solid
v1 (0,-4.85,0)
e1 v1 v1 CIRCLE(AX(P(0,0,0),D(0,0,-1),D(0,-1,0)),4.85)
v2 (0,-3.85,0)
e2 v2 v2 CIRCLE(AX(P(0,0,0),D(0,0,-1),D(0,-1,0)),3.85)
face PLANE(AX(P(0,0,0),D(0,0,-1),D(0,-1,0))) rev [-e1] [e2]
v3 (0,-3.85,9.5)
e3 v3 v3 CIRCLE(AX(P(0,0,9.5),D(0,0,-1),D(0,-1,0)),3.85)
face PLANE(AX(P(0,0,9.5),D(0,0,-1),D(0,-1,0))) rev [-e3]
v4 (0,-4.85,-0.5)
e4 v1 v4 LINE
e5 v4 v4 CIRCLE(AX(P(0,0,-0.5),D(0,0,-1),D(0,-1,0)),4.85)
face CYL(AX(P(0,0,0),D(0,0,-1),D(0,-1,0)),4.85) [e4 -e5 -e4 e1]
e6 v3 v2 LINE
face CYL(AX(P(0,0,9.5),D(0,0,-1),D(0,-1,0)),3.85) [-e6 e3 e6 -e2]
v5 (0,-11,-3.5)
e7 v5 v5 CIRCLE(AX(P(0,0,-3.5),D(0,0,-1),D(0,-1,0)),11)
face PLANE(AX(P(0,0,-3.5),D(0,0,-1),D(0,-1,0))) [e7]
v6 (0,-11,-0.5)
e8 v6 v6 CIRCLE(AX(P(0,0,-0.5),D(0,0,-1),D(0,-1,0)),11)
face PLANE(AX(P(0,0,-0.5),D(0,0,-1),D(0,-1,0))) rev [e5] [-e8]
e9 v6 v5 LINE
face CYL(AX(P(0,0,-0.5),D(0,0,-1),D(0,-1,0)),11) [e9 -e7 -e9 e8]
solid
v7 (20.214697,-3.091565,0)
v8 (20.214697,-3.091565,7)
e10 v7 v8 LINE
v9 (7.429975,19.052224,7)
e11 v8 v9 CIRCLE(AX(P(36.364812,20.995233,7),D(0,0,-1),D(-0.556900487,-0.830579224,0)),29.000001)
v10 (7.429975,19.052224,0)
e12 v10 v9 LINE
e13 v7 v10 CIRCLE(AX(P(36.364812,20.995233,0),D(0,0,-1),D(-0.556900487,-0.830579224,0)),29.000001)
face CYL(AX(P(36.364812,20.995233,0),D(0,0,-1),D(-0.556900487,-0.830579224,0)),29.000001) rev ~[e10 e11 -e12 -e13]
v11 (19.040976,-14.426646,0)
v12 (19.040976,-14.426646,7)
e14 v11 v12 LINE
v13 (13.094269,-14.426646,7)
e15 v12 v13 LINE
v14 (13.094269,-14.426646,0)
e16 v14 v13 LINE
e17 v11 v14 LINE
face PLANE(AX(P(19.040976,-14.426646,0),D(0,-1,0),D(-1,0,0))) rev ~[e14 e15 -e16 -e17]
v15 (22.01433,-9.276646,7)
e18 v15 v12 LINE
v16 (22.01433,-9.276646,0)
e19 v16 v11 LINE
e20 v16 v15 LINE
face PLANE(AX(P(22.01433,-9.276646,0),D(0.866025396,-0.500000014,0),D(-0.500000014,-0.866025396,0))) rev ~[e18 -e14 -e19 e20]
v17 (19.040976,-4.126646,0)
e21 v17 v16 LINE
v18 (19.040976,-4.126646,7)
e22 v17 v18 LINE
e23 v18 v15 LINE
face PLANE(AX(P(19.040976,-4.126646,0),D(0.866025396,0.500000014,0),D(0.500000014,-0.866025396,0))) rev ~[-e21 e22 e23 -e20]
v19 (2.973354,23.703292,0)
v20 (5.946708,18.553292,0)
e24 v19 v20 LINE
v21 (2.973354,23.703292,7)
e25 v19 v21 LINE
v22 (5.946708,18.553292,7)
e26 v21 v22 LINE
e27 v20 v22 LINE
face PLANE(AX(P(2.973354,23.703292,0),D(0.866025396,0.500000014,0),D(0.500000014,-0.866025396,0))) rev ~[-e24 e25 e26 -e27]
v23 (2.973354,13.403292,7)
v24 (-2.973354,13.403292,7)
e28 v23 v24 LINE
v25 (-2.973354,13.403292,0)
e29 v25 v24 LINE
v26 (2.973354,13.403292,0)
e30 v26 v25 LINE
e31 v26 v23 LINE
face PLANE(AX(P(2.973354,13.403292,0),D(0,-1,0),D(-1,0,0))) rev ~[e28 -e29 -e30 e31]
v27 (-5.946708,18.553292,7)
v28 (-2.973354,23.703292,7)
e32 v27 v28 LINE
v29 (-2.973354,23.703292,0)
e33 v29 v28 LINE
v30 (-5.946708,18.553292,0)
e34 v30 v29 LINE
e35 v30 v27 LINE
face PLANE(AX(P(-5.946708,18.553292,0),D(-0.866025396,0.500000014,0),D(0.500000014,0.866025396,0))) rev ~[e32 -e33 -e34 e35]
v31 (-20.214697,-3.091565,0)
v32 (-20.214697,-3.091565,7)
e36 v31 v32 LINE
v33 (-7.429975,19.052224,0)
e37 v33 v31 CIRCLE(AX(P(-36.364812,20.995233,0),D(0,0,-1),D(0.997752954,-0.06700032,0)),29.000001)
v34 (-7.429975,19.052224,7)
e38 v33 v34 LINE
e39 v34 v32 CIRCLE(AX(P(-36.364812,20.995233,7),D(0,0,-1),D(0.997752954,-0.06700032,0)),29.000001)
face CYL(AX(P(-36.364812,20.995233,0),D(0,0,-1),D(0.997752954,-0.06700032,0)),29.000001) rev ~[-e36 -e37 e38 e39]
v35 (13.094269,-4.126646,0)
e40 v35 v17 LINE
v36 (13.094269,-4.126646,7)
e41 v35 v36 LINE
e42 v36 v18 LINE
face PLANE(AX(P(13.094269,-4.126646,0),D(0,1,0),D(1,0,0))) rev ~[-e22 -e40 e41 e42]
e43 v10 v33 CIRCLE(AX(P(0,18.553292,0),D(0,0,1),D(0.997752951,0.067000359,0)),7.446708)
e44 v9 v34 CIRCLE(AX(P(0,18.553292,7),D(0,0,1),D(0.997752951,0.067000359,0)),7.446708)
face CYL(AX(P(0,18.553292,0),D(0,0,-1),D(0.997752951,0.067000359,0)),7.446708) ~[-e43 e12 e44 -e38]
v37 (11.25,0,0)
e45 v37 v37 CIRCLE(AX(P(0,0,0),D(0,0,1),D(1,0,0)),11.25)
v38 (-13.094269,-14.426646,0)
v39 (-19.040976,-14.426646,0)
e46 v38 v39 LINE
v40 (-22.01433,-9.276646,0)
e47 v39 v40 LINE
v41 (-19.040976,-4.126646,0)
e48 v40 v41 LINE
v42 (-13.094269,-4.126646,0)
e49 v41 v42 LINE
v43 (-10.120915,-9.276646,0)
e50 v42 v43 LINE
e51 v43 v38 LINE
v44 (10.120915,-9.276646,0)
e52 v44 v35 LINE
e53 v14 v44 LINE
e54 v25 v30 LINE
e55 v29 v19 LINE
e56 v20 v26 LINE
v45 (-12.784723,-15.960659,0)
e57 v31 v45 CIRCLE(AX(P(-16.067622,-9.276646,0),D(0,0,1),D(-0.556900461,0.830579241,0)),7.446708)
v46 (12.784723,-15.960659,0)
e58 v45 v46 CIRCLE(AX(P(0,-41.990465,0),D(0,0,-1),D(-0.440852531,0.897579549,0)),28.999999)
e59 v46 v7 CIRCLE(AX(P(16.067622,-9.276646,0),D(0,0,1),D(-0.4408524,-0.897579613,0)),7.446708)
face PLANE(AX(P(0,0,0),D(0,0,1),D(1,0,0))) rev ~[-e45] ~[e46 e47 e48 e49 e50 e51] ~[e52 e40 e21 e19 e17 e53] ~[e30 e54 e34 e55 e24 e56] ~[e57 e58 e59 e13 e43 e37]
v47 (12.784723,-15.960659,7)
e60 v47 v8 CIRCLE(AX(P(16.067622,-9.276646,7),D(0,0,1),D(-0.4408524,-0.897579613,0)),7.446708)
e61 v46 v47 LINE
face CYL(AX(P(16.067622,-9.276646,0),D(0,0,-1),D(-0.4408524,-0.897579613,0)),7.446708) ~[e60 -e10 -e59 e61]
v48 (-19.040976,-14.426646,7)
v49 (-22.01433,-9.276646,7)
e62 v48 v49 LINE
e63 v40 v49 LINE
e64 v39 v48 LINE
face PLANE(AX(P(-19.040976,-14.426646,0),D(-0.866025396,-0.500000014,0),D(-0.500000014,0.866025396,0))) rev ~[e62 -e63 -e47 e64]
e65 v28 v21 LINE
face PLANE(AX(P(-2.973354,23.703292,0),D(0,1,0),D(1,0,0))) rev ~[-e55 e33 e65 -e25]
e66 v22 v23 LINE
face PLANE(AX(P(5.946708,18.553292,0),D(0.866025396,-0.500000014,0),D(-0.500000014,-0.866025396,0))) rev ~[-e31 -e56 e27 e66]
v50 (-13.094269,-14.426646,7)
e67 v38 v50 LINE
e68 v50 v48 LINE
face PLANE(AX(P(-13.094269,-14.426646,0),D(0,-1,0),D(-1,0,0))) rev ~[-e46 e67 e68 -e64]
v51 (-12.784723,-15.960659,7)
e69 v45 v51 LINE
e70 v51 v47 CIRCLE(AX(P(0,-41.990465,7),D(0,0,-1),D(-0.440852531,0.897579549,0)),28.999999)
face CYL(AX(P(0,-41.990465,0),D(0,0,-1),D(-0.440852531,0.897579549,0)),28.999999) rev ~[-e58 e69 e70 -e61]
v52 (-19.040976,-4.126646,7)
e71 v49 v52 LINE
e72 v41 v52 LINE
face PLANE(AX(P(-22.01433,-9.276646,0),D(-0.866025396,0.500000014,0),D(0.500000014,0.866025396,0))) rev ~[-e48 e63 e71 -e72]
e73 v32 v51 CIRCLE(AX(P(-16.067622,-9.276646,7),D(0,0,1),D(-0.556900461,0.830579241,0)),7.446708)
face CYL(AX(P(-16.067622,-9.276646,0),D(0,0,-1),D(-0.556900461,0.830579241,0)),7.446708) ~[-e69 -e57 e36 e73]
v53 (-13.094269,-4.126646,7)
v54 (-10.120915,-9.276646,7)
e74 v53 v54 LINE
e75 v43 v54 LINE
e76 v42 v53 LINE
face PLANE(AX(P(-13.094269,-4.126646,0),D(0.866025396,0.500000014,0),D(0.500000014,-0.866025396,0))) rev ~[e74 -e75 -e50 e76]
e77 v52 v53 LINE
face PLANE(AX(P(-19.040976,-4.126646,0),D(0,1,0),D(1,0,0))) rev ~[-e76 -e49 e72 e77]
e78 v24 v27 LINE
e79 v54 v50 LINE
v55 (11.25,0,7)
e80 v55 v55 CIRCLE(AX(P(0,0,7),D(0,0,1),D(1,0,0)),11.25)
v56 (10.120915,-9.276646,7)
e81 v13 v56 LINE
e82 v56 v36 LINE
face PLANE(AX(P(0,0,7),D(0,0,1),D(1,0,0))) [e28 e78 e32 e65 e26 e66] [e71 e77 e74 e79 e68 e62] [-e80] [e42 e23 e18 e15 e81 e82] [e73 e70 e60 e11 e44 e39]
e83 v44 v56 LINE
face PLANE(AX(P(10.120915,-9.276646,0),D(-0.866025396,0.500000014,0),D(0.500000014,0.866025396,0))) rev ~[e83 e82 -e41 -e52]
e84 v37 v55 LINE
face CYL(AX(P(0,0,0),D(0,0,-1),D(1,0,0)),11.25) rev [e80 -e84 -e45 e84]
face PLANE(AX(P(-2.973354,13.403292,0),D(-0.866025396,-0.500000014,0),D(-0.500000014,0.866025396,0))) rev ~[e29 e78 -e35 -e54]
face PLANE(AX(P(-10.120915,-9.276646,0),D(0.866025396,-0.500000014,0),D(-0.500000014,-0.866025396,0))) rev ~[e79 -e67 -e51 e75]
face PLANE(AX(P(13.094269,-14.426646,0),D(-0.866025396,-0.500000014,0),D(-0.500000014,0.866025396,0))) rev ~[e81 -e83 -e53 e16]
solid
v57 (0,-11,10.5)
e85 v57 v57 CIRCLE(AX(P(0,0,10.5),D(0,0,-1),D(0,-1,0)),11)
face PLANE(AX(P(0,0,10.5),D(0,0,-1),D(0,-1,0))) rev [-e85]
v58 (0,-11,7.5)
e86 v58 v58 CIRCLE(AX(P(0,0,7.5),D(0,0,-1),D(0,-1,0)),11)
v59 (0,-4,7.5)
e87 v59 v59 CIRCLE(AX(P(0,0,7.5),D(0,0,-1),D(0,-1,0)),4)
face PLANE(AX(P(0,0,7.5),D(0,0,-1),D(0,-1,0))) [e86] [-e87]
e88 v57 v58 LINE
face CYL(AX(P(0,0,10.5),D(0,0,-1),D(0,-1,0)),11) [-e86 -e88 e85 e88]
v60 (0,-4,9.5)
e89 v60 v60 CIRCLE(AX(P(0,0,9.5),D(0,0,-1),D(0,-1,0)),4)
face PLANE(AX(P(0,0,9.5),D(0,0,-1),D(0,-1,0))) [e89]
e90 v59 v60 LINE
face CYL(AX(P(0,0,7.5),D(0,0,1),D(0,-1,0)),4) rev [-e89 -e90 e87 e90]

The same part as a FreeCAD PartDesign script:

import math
import FreeCAD as App
import Part
import Sketcher
from FreeCAD import Vector


def add_polygon(sketch, points):
    """Adds a closed chain of lines whose ends are joined by coincident constraints."""
    first, n = sketch.GeometryCount, len(points)
    for a, b in zip(points, points[1:] + points[:1]):
        sketch.addGeometry(Part.LineSegment(App.Vector(*a, 0), App.Vector(*b, 0)), False)
    for i in range(n):
        sketch.addConstraint(Sketcher.Constraint("Coincident", first + i, 2, first + (i + 1) % n, 1))

doc = App.newDocument("Part")
params = doc.addObject("Spreadsheet::Sheet", "Params")
for row, (alias, value) in enumerate([
    ("sketch1_radius", "29.000001 mm"),
    ("sketch1_radius2", "29.000001 mm"),
    ("sketch1_radius3", "28.999999 mm"),
    ("sketch1_diameter", "22.5 mm"),
    ("pad1_length", "7 mm"),
    ("sketch2_width", "1 mm"),
    ("sketch2_width2", "11 mm"),
    ("sketch2_height", "3 mm"),
    ("sketch2_height2", "13 mm"),
    ("sketch2_height3", "0.5 mm"),
    ("revolution_angle", "360 deg"),
    ("sketch3_width", "4 mm"),
    ("sketch3_width2", "11 mm"),
    ("sketch3_height", "1 mm"),
    ("sketch3_height2", "3 mm"),
    ("revolution2_angle", "360 deg"),
], start=1):
    params.set(f"A{row}", alias)
    params.set(f"B{row}", "=" + value)
    params.setAlias(f"B{row}", alias)

body = doc.addObject("PartDesign::Body", "Body")

# Sketch on XY plane
sketch1 = body.newObject("Sketcher::SketchObject", "Sketch")
sketch1.AttachmentSupport = (doc.getObject("XY_Plane"), [""])
sketch1.MapMode = "FlatFace"
sketch1.addGeometry(Part.ArcOfCircle(Part.Circle(Vector(36.364812, 20.995233, 0), Vector(0, 0, 1), 29.000001), math.radians(-176.158286), math.radians(-123.841716)), False)  # 0
sketch1.addGeometry(Part.ArcOfCircle(Part.Circle(Vector(0, 18.553292, 0), Vector(0, 0, 1), 7.446708), math.radians(3.841716), math.radians(176.158284)), False)  # 1
sketch1.addGeometry(Part.ArcOfCircle(Part.Circle(Vector(-36.364812, 20.995233, 0), Vector(0, 0, 1), 29.000001), math.radians(-56.158284), math.radians(-3.841714)), False)  # 2
sketch1.addGeometry(Part.ArcOfCircle(Part.Circle(Vector(-16.067622, -9.276646, 0), Vector(0, 0, 1), 7.446708), math.radians(123.841714), math.radians(296.15828)), False)  # 3
sketch1.addGeometry(Part.ArcOfCircle(Part.Circle(Vector(0, -41.990465, 0), Vector(0, 0, 1), 28.999999), math.radians(63.841711), math.radians(116.158289)), False)  # 4
sketch1.addGeometry(Part.ArcOfCircle(Part.Circle(Vector(16.067622, -9.276646, 0), Vector(0, 0, 1), 7.446708), math.radians(-116.15828), math.radians(56.158286)), False)  # 5
add_polygon(sketch1, [(-10.120915, -9.276646), (-13.094269, -14.426646), (-19.040976, -14.426646), (-22.01433, -9.276646), (-19.040976, -4.126646), (-13.094269, -4.126646)])  # lines 6-11
add_polygon(sketch1, [(13.094269, -4.126646), (19.040976, -4.126646), (22.01433, -9.276646), (19.040976, -14.426646), (13.094269, -14.426646), (10.120915, -9.276646)])  # lines 12-17
sketch1.addGeometry(Part.Circle(Vector(0, 0, 0), Vector(0, 0, 1), 11.25), False)  # 18
add_polygon(sketch1, [(-2.973354, 23.703292), (2.973354, 23.703292), (5.946708, 18.553292), (2.973354, 13.403292), (-2.973354, 13.403292), (-5.946708, 18.553292)])  # lines 19-24
sketch1.addConstraint([
    Sketcher.Constraint("Coincident", 0, 1, 1, 1),
    Sketcher.Constraint("Coincident", 1, 2, 2, 2),
    Sketcher.Constraint("Coincident", 2, 1, 3, 1),
    Sketcher.Constraint("Coincident", 3, 2, 4, 2),
    Sketcher.Constraint("Coincident", 4, 1, 5, 1),
    Sketcher.Constraint("Coincident", 5, 2, 0, 2),
    Sketcher.Constraint("Horizontal", 7),
    Sketcher.Constraint("Horizontal", 10),
    Sketcher.Constraint("Horizontal", 12),
    Sketcher.Constraint("Horizontal", 15),
    Sketcher.Constraint("Horizontal", 19),
    Sketcher.Constraint("Horizontal", 22),
    Sketcher.Constraint("Coincident", 18, 3, -1, 1),
    Sketcher.Constraint("PointOnObject", 1, 3, -2),
    Sketcher.Constraint("PointOnObject", 4, 3, -2),
    Sketcher.Constraint("Radius", 0, 29.000001),
    Sketcher.Constraint("Radius", 2, 29.000001),
    Sketcher.Constraint("Radius", 4, 28.999999),
    Sketcher.Constraint("Diameter", 18, 22.5),
    Sketcher.Constraint("DistanceY", 7, 2, 9, 2, 10.3),
    Sketcher.Constraint("DistanceY", 14, 2, 12, 2, 10.3),
    Sketcher.Constraint("DistanceY", 21, 2, 19, 2, 10.3),
    Sketcher.Constraint("Radius", 1, 7.446708),
    Sketcher.Constraint("DistanceY", 6, 2, 3, 3, 5.15),
    Sketcher.Constraint("DistanceY", 7, 2, 8, 2, 5.15),
    Sketcher.Constraint("DistanceY", 11, 2, 10, 2, 5.15),
    Sketcher.Constraint("DistanceY", 5, 3, 12, 2, 5.15),
    Sketcher.Constraint("DistanceY", 13, 2, 12, 2, 5.15),
    Sketcher.Constraint("DistanceY", 15, 2, 16, 2, 5.15),
    Sketcher.Constraint("DistanceY", 1, 3, 19, 2, 5.15),
    Sketcher.Constraint("DistanceY", 20, 2, 19, 2, 5.15),
    Sketcher.Constraint("DistanceY", 22, 2, 23, 2, 5.15),
    Sketcher.Constraint("Radius", 3, 7.446708),
    Sketcher.Constraint("Radius", 5, 7.446708),
    Sketcher.Constraint("DistanceX", 0, 1, 12, 2, 11.611001),
    Sketcher.Constraint("DistanceY", 4, 3, 0, 3, 62.985698),
    Sketcher.Constraint("DistanceY", 4, 3, 2, 3, 62.985698),
    Sketcher.Constraint("DistanceY", 2, 1, 2, 3, 24.086798),
    Sketcher.Constraint("DistanceX", 3, 3, 3, 2, 3.282899),
    Sketcher.Constraint("DistanceX", 4, 1, 5, 3, 3.282899),
    Sketcher.Constraint("DistanceY", 5, 2, 0, 3, 24.086798),
    Sketcher.Constraint("DistanceX", 7, 2, 7, 1, 5.946707),
    Sketcher.Constraint("DistanceX", 10, 1, 10, 2, 5.946707),
    Sketcher.Constraint("DistanceX", 12, 1, 12, 2, 5.946707),
    Sketcher.Constraint("DistanceX", 15, 2, 15, 1, 5.946707),
    Sketcher.Constraint("DistanceX", 19, 1, 19, 2, 5.946708),
    Sketcher.Constraint("DistanceX", 22, 2, 22, 1, 5.946708),
    Sketcher.Constraint("DistanceX", -1, 1, 0, 3, 36.364812),
    Sketcher.Constraint("DistanceY", -1, 1, 1, 3, 18.553292),
    Sketcher.Constraint("DistanceX", 6, 2, -1, 1, 13.094269),
    Sketcher.Constraint("DistanceX", 8, 2, -1, 1, 22.01433),
    Sketcher.Constraint("DistanceX", 10, 2, -1, 1, 13.094269),
    Sketcher.Constraint("DistanceX", -1, 1, 13, 2, 22.01433),
    Sketcher.Constraint("DistanceX", -1, 1, 15, 2, 13.094269),
    Sketcher.Constraint("DistanceX", -1, 1, 17, 2, 13.094269),
    Sketcher.Constraint("DistanceX", 1, 2, 0, 1, 14.85995),
    Sketcher.Constraint("DistanceX", 7, 2, 11, 2, 8.920061),
    Sketcher.Constraint("DistanceX", 16, 2, 12, 2, 8.920061),
    Sketcher.Constraint("DistanceX", 19, 2, 0, 1, 4.456621),
    Sketcher.Constraint("DistanceX", 21, 2, 0, 1, 4.456621),
    Sketcher.Constraint("Distance", 20, 5.946708),
    Sketcher.Constraint("Distance", 23, 5.946708),
])
sketch1.setExpression("Constraints[33]", "Params.sketch1_radius")
sketch1.setExpression("Constraints[34]", "Params.sketch1_radius2")
sketch1.setExpression("Constraints[35]", "Params.sketch1_radius3")
sketch1.setExpression("Constraints[36]", "Params.sketch1_diameter")
pad1 = body.newObject("PartDesign::Pad", "Pad")
pad1.Profile = sketch1
pad1.setExpression("Length", "Params.pad1_length")
body2 = doc.addObject("PartDesign::Body", "Body001")

# Sketch on YZ plane
sketch2 = body2.newObject("Sketcher::SketchObject", "Sketch001")
sketch2.AttachmentSupport = (doc.getObject("YZ_Plane001"), [""])
sketch2.MapMode = "FlatFace"
add_polygon(sketch2, [(-3.9, 0), (-4.8, 0), (-4.8, -0.5), (-11, -0.5), (-11, -3.5), (0, -3.5), (0, 9.5), (-3.9, 9.5)])  # lines 0-7
sketch2.addConstraint([
    Sketcher.Constraint("Horizontal", 0),
    Sketcher.Constraint("Vertical", 1),
    Sketcher.Constraint("Horizontal", 2),
    Sketcher.Constraint("Vertical", 3),
    Sketcher.Constraint("Horizontal", 4),
    Sketcher.Constraint("Vertical", 5),
    Sketcher.Constraint("Horizontal", 6),
    Sketcher.Constraint("Vertical", 7),
    Sketcher.Constraint("PointOnObject", 0, 2, -1),
    Sketcher.Constraint("PointOnObject", 4, 2, -2),
    Sketcher.Constraint("DistanceX", 0, 2, 0, 1, 1.0),
    Sketcher.Constraint("DistanceX", 4, 1, 4, 2, 11.0),
    Sketcher.Constraint("DistanceY", 3, 2, 3, 1, 3.0),
    Sketcher.Constraint("DistanceY", 5, 1, 5, 2, 13.0),
    Sketcher.Constraint("DistanceY", 1, 2, 1, 1, 0.5),
    Sketcher.Constraint("DistanceX", 2, 2, 2, 1, 6.15),
])
sketch2.setExpression("Constraints[18]", "Params.sketch2_width")
sketch2.setExpression("Constraints[19]", "Params.sketch2_width2")
sketch2.setExpression("Constraints[20]", "Params.sketch2_height")
sketch2.setExpression("Constraints[21]", "Params.sketch2_height2")
sketch2.setExpression("Constraints[22]", "Params.sketch2_height3")
revolution = body2.newObject("PartDesign::Revolution", "Revolution")
revolution.Profile = sketch2
revolution.ReferenceAxis = (sketch2, ["V_Axis"])
revolution.setExpression("Angle", "Params.revolution_angle")
body3 = doc.addObject("PartDesign::Body", "Body002")

# Sketch on YZ plane
sketch3 = body3.newObject("Sketcher::SketchObject", "Sketch002")
sketch3.AttachmentSupport = (doc.getObject("YZ_Plane002"), [""])
sketch3.MapMode = "FlatFace"
add_polygon(sketch3, [(-4, 9.5), (0, 9.5), (0, 10.5), (-11, 10.5), (-11, 7.5), (-4, 7.5)])  # lines 0-5
sketch3.addConstraint([
    Sketcher.Constraint("Horizontal", 0),
    Sketcher.Constraint("Vertical", 1),
    Sketcher.Constraint("Horizontal", 2),
    Sketcher.Constraint("Vertical", 3),
    Sketcher.Constraint("Horizontal", 4),
    Sketcher.Constraint("Vertical", 5),
    Sketcher.Constraint("PointOnObject", 0, 2, -2),
    Sketcher.Constraint("DistanceX", 0, 1, 0, 2, 4.0),
    Sketcher.Constraint("DistanceX", 2, 2, 2, 1, 11.0),
    Sketcher.Constraint("DistanceY", 1, 1, 1, 2, 1.0),
    Sketcher.Constraint("DistanceY", 3, 2, 3, 1, 3.0),
    Sketcher.Constraint("DistanceY", -1, 1, 0, 2, 9.5),
])
sketch3.setExpression("Constraints[13]", "Params.sketch3_width")
sketch3.setExpression("Constraints[14]", "Params.sketch3_width2")
sketch3.setExpression("Constraints[15]", "Params.sketch3_height")
sketch3.setExpression("Constraints[16]", "Params.sketch3_height2")
revolution2 = body3.newObject("PartDesign::Revolution", "Revolution001")
revolution2.Profile = sketch3
revolution2.ReferenceAxis = (sketch3, ["V_Axis"])
revolution2.setExpression("Angle", "Params.revolution2_angle")

doc.recompute()
